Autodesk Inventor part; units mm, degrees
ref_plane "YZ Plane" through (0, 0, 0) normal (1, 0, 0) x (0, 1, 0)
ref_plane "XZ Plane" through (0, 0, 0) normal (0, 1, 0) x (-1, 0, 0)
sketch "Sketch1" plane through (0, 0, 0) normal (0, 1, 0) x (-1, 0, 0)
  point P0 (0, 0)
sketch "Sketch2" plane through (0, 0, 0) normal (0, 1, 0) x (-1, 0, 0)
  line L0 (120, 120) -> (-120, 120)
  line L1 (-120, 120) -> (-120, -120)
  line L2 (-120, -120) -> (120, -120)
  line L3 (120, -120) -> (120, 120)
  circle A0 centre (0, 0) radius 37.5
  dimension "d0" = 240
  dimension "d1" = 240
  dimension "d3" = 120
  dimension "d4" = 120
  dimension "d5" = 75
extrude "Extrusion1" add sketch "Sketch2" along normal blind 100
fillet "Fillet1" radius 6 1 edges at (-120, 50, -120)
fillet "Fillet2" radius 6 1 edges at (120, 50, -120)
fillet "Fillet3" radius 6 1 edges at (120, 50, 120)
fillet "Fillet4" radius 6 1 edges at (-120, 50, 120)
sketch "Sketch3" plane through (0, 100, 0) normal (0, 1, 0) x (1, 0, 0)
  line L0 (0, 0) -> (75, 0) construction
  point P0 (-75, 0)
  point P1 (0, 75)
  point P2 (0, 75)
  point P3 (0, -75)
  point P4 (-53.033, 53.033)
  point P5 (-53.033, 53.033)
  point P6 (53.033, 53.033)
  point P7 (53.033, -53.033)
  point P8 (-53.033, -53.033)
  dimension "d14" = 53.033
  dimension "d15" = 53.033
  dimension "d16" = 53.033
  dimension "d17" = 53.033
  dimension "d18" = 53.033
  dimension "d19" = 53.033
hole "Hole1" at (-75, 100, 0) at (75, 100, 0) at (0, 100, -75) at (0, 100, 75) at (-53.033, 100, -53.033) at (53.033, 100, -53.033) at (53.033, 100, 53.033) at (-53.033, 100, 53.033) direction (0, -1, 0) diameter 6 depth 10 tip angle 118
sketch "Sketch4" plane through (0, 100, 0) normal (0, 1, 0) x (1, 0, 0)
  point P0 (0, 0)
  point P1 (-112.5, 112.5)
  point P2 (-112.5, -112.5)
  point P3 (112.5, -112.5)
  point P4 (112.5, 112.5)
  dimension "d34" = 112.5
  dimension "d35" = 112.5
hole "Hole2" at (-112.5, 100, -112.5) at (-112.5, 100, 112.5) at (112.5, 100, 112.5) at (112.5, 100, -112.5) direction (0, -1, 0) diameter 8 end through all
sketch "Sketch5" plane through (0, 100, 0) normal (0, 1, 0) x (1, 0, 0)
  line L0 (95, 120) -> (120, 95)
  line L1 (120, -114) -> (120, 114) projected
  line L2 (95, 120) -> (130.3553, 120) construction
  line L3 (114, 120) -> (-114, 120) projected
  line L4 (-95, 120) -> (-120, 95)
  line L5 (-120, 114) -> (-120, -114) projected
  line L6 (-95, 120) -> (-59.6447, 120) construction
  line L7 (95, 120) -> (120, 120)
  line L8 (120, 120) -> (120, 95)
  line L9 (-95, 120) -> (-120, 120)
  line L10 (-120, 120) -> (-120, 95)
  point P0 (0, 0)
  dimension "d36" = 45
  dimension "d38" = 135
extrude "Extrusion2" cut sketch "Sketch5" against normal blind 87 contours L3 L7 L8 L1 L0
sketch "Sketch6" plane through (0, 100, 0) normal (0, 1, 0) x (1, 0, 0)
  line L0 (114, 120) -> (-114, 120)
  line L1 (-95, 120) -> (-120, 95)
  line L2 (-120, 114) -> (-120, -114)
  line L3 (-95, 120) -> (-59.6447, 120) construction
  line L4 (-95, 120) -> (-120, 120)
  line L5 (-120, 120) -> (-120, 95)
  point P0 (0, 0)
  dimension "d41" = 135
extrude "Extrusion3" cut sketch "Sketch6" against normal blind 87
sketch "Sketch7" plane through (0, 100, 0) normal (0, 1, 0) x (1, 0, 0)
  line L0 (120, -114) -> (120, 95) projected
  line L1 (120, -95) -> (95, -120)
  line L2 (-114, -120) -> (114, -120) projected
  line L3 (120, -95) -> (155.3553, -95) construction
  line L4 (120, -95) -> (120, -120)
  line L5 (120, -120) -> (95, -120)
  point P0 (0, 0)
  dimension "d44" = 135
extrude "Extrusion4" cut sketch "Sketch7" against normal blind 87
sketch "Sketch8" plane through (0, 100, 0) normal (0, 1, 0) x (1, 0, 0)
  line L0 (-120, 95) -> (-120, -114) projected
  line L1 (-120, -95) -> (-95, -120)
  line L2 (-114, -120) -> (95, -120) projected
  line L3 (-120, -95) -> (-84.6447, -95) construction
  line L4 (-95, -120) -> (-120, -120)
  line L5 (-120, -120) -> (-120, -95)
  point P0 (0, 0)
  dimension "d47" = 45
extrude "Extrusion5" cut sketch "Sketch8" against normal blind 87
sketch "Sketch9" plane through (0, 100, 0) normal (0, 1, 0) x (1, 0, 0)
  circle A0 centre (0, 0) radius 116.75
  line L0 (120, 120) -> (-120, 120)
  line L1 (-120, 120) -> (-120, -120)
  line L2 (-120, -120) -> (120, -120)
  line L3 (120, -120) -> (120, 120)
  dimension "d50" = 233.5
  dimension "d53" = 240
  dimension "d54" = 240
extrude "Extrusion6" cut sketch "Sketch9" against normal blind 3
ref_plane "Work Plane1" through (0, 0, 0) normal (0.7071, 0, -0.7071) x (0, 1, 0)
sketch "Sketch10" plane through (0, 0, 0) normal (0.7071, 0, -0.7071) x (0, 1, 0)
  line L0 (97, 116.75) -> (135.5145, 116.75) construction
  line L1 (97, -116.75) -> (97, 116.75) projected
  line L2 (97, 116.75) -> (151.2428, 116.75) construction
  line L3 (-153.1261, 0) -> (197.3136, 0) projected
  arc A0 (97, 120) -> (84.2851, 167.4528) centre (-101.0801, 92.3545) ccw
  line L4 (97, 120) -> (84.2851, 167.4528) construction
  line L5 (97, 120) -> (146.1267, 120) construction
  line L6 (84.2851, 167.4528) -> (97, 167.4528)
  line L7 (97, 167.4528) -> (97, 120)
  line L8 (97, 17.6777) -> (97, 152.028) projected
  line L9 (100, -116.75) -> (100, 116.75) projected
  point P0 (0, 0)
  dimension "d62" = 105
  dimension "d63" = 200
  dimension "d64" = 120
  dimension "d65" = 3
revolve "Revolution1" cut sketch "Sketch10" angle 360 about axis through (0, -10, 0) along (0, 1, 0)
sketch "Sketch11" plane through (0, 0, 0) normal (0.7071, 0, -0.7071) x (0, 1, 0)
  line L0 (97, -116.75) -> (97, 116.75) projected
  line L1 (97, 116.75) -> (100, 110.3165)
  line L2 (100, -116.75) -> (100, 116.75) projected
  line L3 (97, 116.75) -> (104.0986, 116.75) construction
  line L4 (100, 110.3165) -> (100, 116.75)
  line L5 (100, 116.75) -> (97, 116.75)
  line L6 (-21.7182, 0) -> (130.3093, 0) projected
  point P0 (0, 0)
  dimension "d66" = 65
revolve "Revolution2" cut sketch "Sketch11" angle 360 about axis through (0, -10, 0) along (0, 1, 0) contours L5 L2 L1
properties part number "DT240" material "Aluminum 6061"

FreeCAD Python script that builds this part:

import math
import FreeCAD as App
import Part
import Sketcher
Q = App.Units.Quantity


def edges_at(feature, points):
    """Names of the edges that pass closest to the given points."""
    edges = feature.Shape.Edges
    near = lambda p: min(range(len(edges)), key=lambda i: edges[i].distToShape(Part.Vertex(*p))[0])
    return sorted({f"Edge{near(p) + 1}" for p in points})

doc = App.newDocument("Part")
params = doc.addObject("Spreadsheet::Sheet", "Params")
for row, (alias, value) in enumerate([
    ("sketch1_diameter", "75 mm"),
    ("sketch1_width", "240 mm"),
    ("pad1_length", "100 mm"),
    ("fillet_radius", "6 mm"),
    ("fillet2_radius", "6 mm"),
    ("fillet3_radius", "6 mm"),
    ("fillet4_radius", "6 mm"),
    ("sketch2_diameter", "6 mm"),
    ("hole_diameter", "6 mm"),
    ("hole_depth", "10 mm"),
    ("sketch3_diameter", "8 mm"),
    ("hole2_diameter", "8 mm"),
    ("sketch4_width", "25 mm"),
    ("pocket1_length", "87 mm"),
    ("sketch5_width", "25 mm"),
    ("pocket2_length", "87 mm"),
    ("sketch6_width", "25 mm"),
    ("pocket3_length", "87 mm"),
    ("sketch7_width", "25 mm"),
    ("pocket4_length", "87 mm"),
    ("sketch8_diameter", "233.5 mm"),
    ("sketch8_width", "240 mm"),
    ("pocket5_length", "3 mm"),
    ("groove_angle", "360 deg"),
    ("sketch10_width", "3 mm"),
    ("groove2_angle", "360 deg"),
], start=1):
    params.set(f"A{row}", alias)
    params.set(f"B{row}", "=" + value)
    params.setAlias(f"B{row}", alias)

body = doc.addObject("PartDesign::Body", "Body")

sketch1 = body.newObject("Sketcher::SketchObject", "Sketch")
sketch1.AttachmentSupport = (doc.getObject("XZ_Plane"), [""])
sketch1.MapMode = "FlatFace"
sketch1.addGeometry([
    Part.LineSegment(App.Vector(-120, -120, 0), App.Vector(-120, 120, 0)),
    Part.LineSegment(App.Vector(-120, 120, 0), App.Vector(120, 120, 0)),
    Part.LineSegment(App.Vector(120, 120, 0), App.Vector(120, -120, 0)),
    Part.LineSegment(App.Vector(120, -120, 0), App.Vector(-120, -120, 0)),
    Part.Circle(App.Vector(0, 0, 0), App.Vector(0, 0, 1), 37.5),
], False)
sketch1.addConstraint([
    Sketcher.Constraint("Coincident", 0, 2, 1, 1),
    Sketcher.Constraint("Coincident", 1, 2, 2, 1),
    Sketcher.Constraint("Coincident", 2, 2, 3, 1),
    Sketcher.Constraint("Coincident", 3, 2, 0, 1),
    Sketcher.Constraint("Vertical", 0),
    Sketcher.Constraint("Horizontal", 1),
    Sketcher.Constraint("Vertical", 2),
    Sketcher.Constraint("Horizontal", 3),
    Sketcher.Constraint("Coincident", 4, 3, -1, 1),
    Sketcher.Constraint("Symmetric", 0, 2, 2, 2, -1, 1),
    Sketcher.Constraint("Equal", 3, 0),
    Sketcher.Constraint("Diameter", 4, Q("75 mm")),
    Sketcher.Constraint("DistanceX", 1, 1, 1, 2, Q("240 mm")),
])
sketch1.setExpression("Constraints[11]", "Params.sketch1_diameter")
sketch1.setExpression("Constraints[12]", "Params.sketch1_width")
pad1 = body.newObject("PartDesign::Pad", "Pad")
pad1.Profile = sketch1
pad1.setExpression("Length", "Params.pad1_length")
pad1.Reversed = True
doc.recompute()

fillet = body.newObject("PartDesign::Fillet", "Fillet")
fillet.Base = (pad1, edges_at(pad1, [(-120, 50, -120)]))
fillet.setExpression("Radius", "Params.fillet_radius")
doc.recompute()

fillet2 = body.newObject("PartDesign::Fillet", "Fillet001")
fillet2.Base = (fillet, edges_at(fillet, [(120, 50, -120)]))
fillet2.setExpression("Radius", "Params.fillet2_radius")
doc.recompute()

fillet3 = body.newObject("PartDesign::Fillet", "Fillet002")
fillet3.Base = (fillet2, edges_at(fillet2, [(120, 50, 120)]))
fillet3.setExpression("Radius", "Params.fillet3_radius")
doc.recompute()

fillet4 = body.newObject("PartDesign::Fillet", "Fillet003")
fillet4.Base = (fillet3, edges_at(fillet3, [(-120, 50, 120)]))
fillet4.setExpression("Radius", "Params.fillet4_radius")

sketch2 = body.newObject("Sketcher::SketchObject", "Sketch001")
sketch2.AttachmentSupport = (doc.getObject("XZ_Plane"), [""])
sketch2.MapMode = "FlatFace"
sketch2.AttachmentOffset = App.Placement(App.Vector(0, 0, -100), App.Rotation())
sketch2.addGeometry([
    Part.Circle(App.Vector(-75, 0, 0), App.Vector(0, 0, 1), 3),
    Part.Circle(App.Vector(75, 0, 0), App.Vector(0, 0, 1), 3),
    Part.Circle(App.Vector(0, -75, 0), App.Vector(0, 0, 1), 3),
    Part.Circle(App.Vector(0, 75, 0), App.Vector(0, 0, 1), 3),
    Part.Circle(App.Vector(-53.033, -53.033, 0), App.Vector(0, 0, 1), 3),
    Part.Circle(App.Vector(53.033, -53.033, 0), App.Vector(0, 0, 1), 3),
    Part.Circle(App.Vector(53.033, 53.033, 0), App.Vector(0, 0, 1), 3),
    Part.Circle(App.Vector(-53.033, 53.033, 0), App.Vector(0, 0, 1), 3),
], False)
sketch2.addConstraint([
    Sketcher.Constraint("Equal", 0, 1),
    Sketcher.Constraint("Equal", 1, 2),
    Sketcher.Constraint("Equal", 2, 3),
    Sketcher.Constraint("Equal", 3, 4),
    Sketcher.Constraint("Equal", 4, 5),
    Sketcher.Constraint("Equal", 5, 6),
    Sketcher.Constraint("Equal", 6, 7),
    Sketcher.Constraint("Symmetric", 0, 3, 1, 3, -1, 1),
    Sketcher.Constraint("Symmetric", 2, 3, 3, 3, -1, 1),
    Sketcher.Constraint("Symmetric", 4, 3, 6, 3, -1, 1),
    Sketcher.Constraint("Symmetric", 5, 3, 7, 3, -1, 1),
    Sketcher.Constraint("Symmetric", 4, 3, 5, 3, -2),
    Sketcher.Constraint("PointOnObject", 0, 3, -1),
    Sketcher.Constraint("PointOnObject", 2, 3, -2),
    Sketcher.Constraint("Diameter", 0, Q("6 mm")),
    Sketcher.Constraint("DistanceX", 0, 3, -1, 1, Q("75 mm")),
    Sketcher.Constraint("DistanceY", 2, 3, -1, 1, Q("75 mm")),
    Sketcher.Constraint("DistanceX", 4, 3, -1, 1, Q("53.033 mm")),
    Sketcher.Constraint("DistanceY", 4, 3, -1, 1, Q("53.033 mm")),
])
sketch2.setExpression("Constraints[14]", "Params.sketch2_diameter")
doc.recompute()
hole = body.newObject("PartDesign::Hole", "Hole")
hole.Profile = sketch2
hole.ThreadType = "None"
hole.setExpression("Diameter", "Params.hole_diameter")
hole.DepthType = "Dimension"
hole.setExpression("Depth", "Params.hole_depth")
hole.DrillPoint = "Angled"
hole.DrillPointAngle = 118
hole.Reversed = True

sketch3 = body.newObject("Sketcher::SketchObject", "Sketch002")
sketch3.AttachmentSupport = (doc.getObject("XZ_Plane"), [""])
sketch3.MapMode = "FlatFace"
sketch3.AttachmentOffset = App.Placement(App.Vector(0, 0, -100), App.Rotation())
sketch3.addGeometry([
    Part.Circle(App.Vector(-112.5, -112.5, 0), App.Vector(0, 0, 1), 4),
    Part.Circle(App.Vector(-112.5, 112.5, 0), App.Vector(0, 0, 1), 4),
    Part.Circle(App.Vector(112.5, 112.5, 0), App.Vector(0, 0, 1), 4),
    Part.Circle(App.Vector(112.5, -112.5, 0), App.Vector(0, 0, 1), 4),
], False)
sketch3.addConstraint([
    Sketcher.Constraint("Equal", 0, 1),
    Sketcher.Constraint("Equal", 1, 2),
    Sketcher.Constraint("Equal", 2, 3),
    Sketcher.Constraint("Symmetric", 0, 3, 2, 3, -1, 1),
    Sketcher.Constraint("Symmetric", 1, 3, 3, 3, -1, 1),
    Sketcher.Constraint("Symmetric", 1, 3, 2, 3, -2),
    Sketcher.Constraint("Diameter", 0, Q("8 mm")),
    Sketcher.Constraint("DistanceY", 0, 3, 1, 3, Q("225 mm")),
    Sketcher.Constraint("DistanceX", 1, 3, 2, 3, Q("225 mm")),
])
sketch3.setExpression("Constraints[6]", "Params.sketch3_diameter")
doc.recompute()
hole2 = body.newObject("PartDesign::Hole", "Hole001")
hole2.Profile = sketch3
hole2.ThreadType = "None"
hole2.setExpression("Diameter", "Params.hole2_diameter")
hole2.DepthType = "ThroughAll"
hole2.Reversed = True

sketch4 = body.newObject("Sketcher::SketchObject", "Sketch003")
sketch4.AttachmentSupport = (doc.getObject("XZ_Plane"), [""])
sketch4.MapMode = "FlatFace"
sketch4.AttachmentOffset = App.Placement(App.Vector(0, 0, -100), App.Rotation())
sketch4.addGeometry([
    Part.LineSegment(App.Vector(120, -120, 0), App.Vector(95, -120, 0)),
    Part.LineSegment(App.Vector(95, -120, 0), App.Vector(120, -95, 0)),
    Part.LineSegment(App.Vector(120, -95, 0), App.Vector(120, -120, 0)),
], False)
sketch4.addConstraint([
    Sketcher.Constraint("Coincident", 0, 2, 1, 1),
    Sketcher.Constraint("Coincident", 1, 2, 2, 1),
    Sketcher.Constraint("Coincident", 2, 2, 0, 1),
    Sketcher.Constraint("Horizontal", 0),
    Sketcher.Constraint("Vertical", 2),
    Sketcher.Constraint("Equal", 0, 2),
    Sketcher.Constraint("DistanceX", 0, 2, 0, 1, Q("25 mm")),
    Sketcher.Constraint("DistanceX", -1, 1, 0, 2, Q("95 mm")),
    Sketcher.Constraint("DistanceY", 0, 2, -1, 1, Q("120 mm")),
])
sketch4.setExpression("Constraints[6]", "Params.sketch4_width")
pocket1 = body.newObject("PartDesign::Pocket", "Pocket")
pocket1.Profile = sketch4
pocket1.setExpression("Length", "Params.pocket1_length")
pocket1.Reversed = True

sketch5 = body.newObject("Sketcher::SketchObject", "Sketch004")
sketch5.AttachmentSupport = (doc.getObject("XZ_Plane"), [""])
sketch5.MapMode = "FlatFace"
sketch5.AttachmentOffset = App.Placement(App.Vector(0, 0, -100), App.Rotation())
sketch5.addGeometry([
    Part.LineSegment(App.Vector(-120, -95, 0), App.Vector(-95, -120, 0)),
    Part.LineSegment(App.Vector(-95, -120, 0), App.Vector(-120, -120, 0)),
    Part.LineSegment(App.Vector(-120, -120, 0), App.Vector(-120, -95, 0)),
], False)
sketch5.addConstraint([
    Sketcher.Constraint("Coincident", 0, 2, 1, 1),
    Sketcher.Constraint("Coincident", 1, 2, 2, 1),
    Sketcher.Constraint("Coincident", 2, 2, 0, 1),
    Sketcher.Constraint("Horizontal", 1),
    Sketcher.Constraint("Vertical", 2),
    Sketcher.Constraint("Equal", 1, 2),
    Sketcher.Constraint("DistanceX", 1, 2, 1, 1, Q("25 mm")),
    Sketcher.Constraint("DistanceX", 0, 2, -1, 1, Q("95 mm")),
    Sketcher.Constraint("DistanceY", 0, 2, -1, 1, Q("120 mm")),
])
sketch5.setExpression("Constraints[6]", "Params.sketch5_width")
pocket2 = body.newObject("PartDesign::Pocket", "Pocket001")
pocket2.Profile = sketch5
pocket2.setExpression("Length", "Params.pocket2_length")
pocket2.Reversed = True

sketch6 = body.newObject("Sketcher::SketchObject", "Sketch005")
sketch6.AttachmentSupport = (doc.getObject("XZ_Plane"), [""])
sketch6.MapMode = "FlatFace"
sketch6.AttachmentOffset = App.Placement(App.Vector(0, 0, -100), App.Rotation())
sketch6.addGeometry([
    Part.LineSegment(App.Vector(120, 120, 0), App.Vector(120, 95, 0)),
    Part.LineSegment(App.Vector(120, 95, 0), App.Vector(95, 120, 0)),
    Part.LineSegment(App.Vector(95, 120, 0), App.Vector(120, 120, 0)),
], False)
sketch6.addConstraint([
    Sketcher.Constraint("Coincident", 0, 2, 1, 1),
    Sketcher.Constraint("Coincident", 1, 2, 2, 1),
    Sketcher.Constraint("Coincident", 2, 2, 0, 1),
    Sketcher.Constraint("Vertical", 0),
    Sketcher.Constraint("Horizontal", 2),
    Sketcher.Constraint("Equal", 2, 0),
    Sketcher.Constraint("DistanceX", 2, 1, 2, 2, Q("25 mm")),
    Sketcher.Constraint("DistanceX", -1, 1, 0, 2, Q("120 mm")),
    Sketcher.Constraint("DistanceY", -1, 1, 0, 2, Q("95 mm")),
])
sketch6.setExpression("Constraints[6]", "Params.sketch6_width")
pocket3 = body.newObject("PartDesign::Pocket", "Pocket002")
pocket3.Profile = sketch6
pocket3.setExpression("Length", "Params.pocket3_length")
pocket3.Reversed = True

sketch7 = body.newObject("Sketcher::SketchObject", "Sketch006")
sketch7.AttachmentSupport = (doc.getObject("XZ_Plane"), [""])
sketch7.MapMode = "FlatFace"
sketch7.AttachmentOffset = App.Placement(App.Vector(0, 0, -100), App.Rotation())
sketch7.addGeometry([
    Part.LineSegment(App.Vector(-95, 120, 0), App.Vector(-120, 95, 0)),
    Part.LineSegment(App.Vector(-120, 95, 0), App.Vector(-120, 120, 0)),
    Part.LineSegment(App.Vector(-120, 120, 0), App.Vector(-95, 120, 0)),
], False)
sketch7.addConstraint([
    Sketcher.Constraint("Coincident", 0, 2, 1, 1),
    Sketcher.Constraint("Coincident", 1, 2, 2, 1),
    Sketcher.Constraint("Coincident", 2, 2, 0, 1),
    Sketcher.Constraint("Vertical", 1),
    Sketcher.Constraint("Horizontal", 2),
    Sketcher.Constraint("Equal", 2, 1),
    Sketcher.Constraint("DistanceX", 2, 1, 2, 2, Q("25 mm")),
    Sketcher.Constraint("DistanceX", 0, 2, -1, 1, Q("120 mm")),
    Sketcher.Constraint("DistanceY", -1, 1, 0, 2, Q("95 mm")),
])
sketch7.setExpression("Constraints[6]", "Params.sketch7_width")
pocket4 = body.newObject("PartDesign::Pocket", "Pocket003")
pocket4.Profile = sketch7
pocket4.setExpression("Length", "Params.pocket4_length")
pocket4.Reversed = True

sketch8 = body.newObject("Sketcher::SketchObject", "Sketch007")
sketch8.AttachmentSupport = (doc.getObject("XZ_Plane"), [""])
sketch8.MapMode = "FlatFace"
sketch8.AttachmentOffset = App.Placement(App.Vector(0, 0, -100), App.Rotation())
sketch8.addGeometry([
    Part.LineSegment(App.Vector(120, 120, 0), App.Vector(120, -120, 0)),
    Part.LineSegment(App.Vector(120, -120, 0), App.Vector(-120, -120, 0)),
    Part.LineSegment(App.Vector(-120, -120, 0), App.Vector(-120, 120, 0)),
    Part.LineSegment(App.Vector(-120, 120, 0), App.Vector(120, 120, 0)),
    Part.Circle(App.Vector(0, 0, 0), App.Vector(0, 0, 1), 116.75),
], False)
sketch8.addConstraint([
    Sketcher.Constraint("Coincident", 0, 2, 1, 1),
    Sketcher.Constraint("Coincident", 1, 2, 2, 1),
    Sketcher.Constraint("Coincident", 2, 2, 3, 1),
    Sketcher.Constraint("Coincident", 3, 2, 0, 1),
    Sketcher.Constraint("Vertical", 0),
    Sketcher.Constraint("Horizontal", 1),
    Sketcher.Constraint("Vertical", 2),
    Sketcher.Constraint("Horizontal", 3),
    Sketcher.Constraint("Coincident", 4, 3, -1, 1),
    Sketcher.Constraint("Symmetric", 0, 2, 2, 2, -1, 1),
    Sketcher.Constraint("Equal", 3, 0),
    Sketcher.Constraint("Diameter", 4, Q("233.5 mm")),
    Sketcher.Constraint("DistanceX", 1, 2, 1, 1, Q("240 mm")),
])
sketch8.setExpression("Constraints[11]", "Params.sketch8_diameter")
sketch8.setExpression("Constraints[12]", "Params.sketch8_width")
pocket5 = body.newObject("PartDesign::Pocket", "Pocket004")
pocket5.Profile = sketch8
pocket5.setExpression("Length", "Params.pocket5_length")
pocket5.Reversed = True

sketch9 = body.newObject("Sketcher::SketchObject", "Sketch008")
sketch9.Placement = App.Placement(App.Vector(0, 0, 0), App.Rotation(App.Vector(0, 1, 0), App.Vector(0.707106781, 0, 0.707106781), App.Vector(0.707106781, 0, -0.707106781), "ZXY"))
sketch9.addGeometry([
    Part.ArcOfCircle(Part.Circle(App.Vector(-101.082102, 92.354094, 0), App.Vector(0, 0, 1), 200.002038), math.radians(7.945328), math.radians(22.054583)),
    Part.LineSegment(App.Vector(97, 120, 0), App.Vector(97, 167.4528, 0)),
    Part.LineSegment(App.Vector(97, 167.4528, 0), App.Vector(84.2851, 167.4528, 0)),
], False)
sketch9.addConstraint([
    Sketcher.Constraint("Coincident", 0, 1, 1, 1),
    Sketcher.Constraint("Coincident", 1, 2, 2, 1),
    Sketcher.Constraint("Coincident", 2, 2, 0, 2),
    Sketcher.Constraint("Vertical", 1),
    Sketcher.Constraint("Horizontal", 2),
    Sketcher.Constraint("DistanceY", -1, 1, 0, 1, Q("120 mm")),
    Sketcher.Constraint("DistanceX", -1, 1, 0, 1, Q("97 mm")),
    Sketcher.Constraint("Radius", 0, Q("200.002 mm")),
    Sketcher.Constraint("DistanceX", 2, 2, 2, 1, Q("12.715 mm")),
    Sketcher.Constraint("DistanceY", 1, 1, 1, 2, Q("47.4528 mm")),
])
groove = body.newObject("PartDesign::Groove", "Groove")
groove.Profile = sketch9
groove.ReferenceAxis = (sketch9, ["H_Axis"])
groove.setExpression("Angle", "Params.groove_angle")

sketch10 = body.newObject("Sketcher::SketchObject", "Sketch009")
sketch10.Placement = App.Placement(App.Vector(0, 0, 0), App.Rotation(App.Vector(0, 1, 0), App.Vector(0.707106781, 0, 0.707106781), App.Vector(0.707106781, 0, -0.707106781), "ZXY"))
sketch10.addGeometry([
    Part.LineSegment(App.Vector(100, 116.75, 0), App.Vector(97, 116.75, 0)),
    Part.LineSegment(App.Vector(97, 116.75, 0), App.Vector(100, 110.3165, 0)),
    Part.LineSegment(App.Vector(100, 110.3165, 0), App.Vector(100, 116.75, 0)),
], False)
sketch10.addConstraint([
    Sketcher.Constraint("Coincident", 0, 2, 1, 1),
    Sketcher.Constraint("Coincident", 1, 2, 2, 1),
    Sketcher.Constraint("Coincident", 2, 2, 0, 1),
    Sketcher.Constraint("Horizontal", 0),
    Sketcher.Constraint("Vertical", 2),
    Sketcher.Constraint("Angle", 1, Q("-65 deg")),
    Sketcher.Constraint("DistanceX", 0, 2, 0, 1, Q("3 mm")),
    Sketcher.Constraint("DistanceX", -1, 1, 0, 2, Q("97 mm")),
    Sketcher.Constraint("DistanceY", -1, 1, 0, 2, Q("116.75 mm")),
])
sketch10.setExpression("Constraints[6]", "Params.sketch10_width")
groove2 = body.newObject("PartDesign::Groove", "Groove001")
groove2.Profile = sketch10
groove2.ReferenceAxis = (sketch10, ["H_Axis"])
groove2.setExpression("Angle", "Params.groove2_angle")

doc.recompute()
